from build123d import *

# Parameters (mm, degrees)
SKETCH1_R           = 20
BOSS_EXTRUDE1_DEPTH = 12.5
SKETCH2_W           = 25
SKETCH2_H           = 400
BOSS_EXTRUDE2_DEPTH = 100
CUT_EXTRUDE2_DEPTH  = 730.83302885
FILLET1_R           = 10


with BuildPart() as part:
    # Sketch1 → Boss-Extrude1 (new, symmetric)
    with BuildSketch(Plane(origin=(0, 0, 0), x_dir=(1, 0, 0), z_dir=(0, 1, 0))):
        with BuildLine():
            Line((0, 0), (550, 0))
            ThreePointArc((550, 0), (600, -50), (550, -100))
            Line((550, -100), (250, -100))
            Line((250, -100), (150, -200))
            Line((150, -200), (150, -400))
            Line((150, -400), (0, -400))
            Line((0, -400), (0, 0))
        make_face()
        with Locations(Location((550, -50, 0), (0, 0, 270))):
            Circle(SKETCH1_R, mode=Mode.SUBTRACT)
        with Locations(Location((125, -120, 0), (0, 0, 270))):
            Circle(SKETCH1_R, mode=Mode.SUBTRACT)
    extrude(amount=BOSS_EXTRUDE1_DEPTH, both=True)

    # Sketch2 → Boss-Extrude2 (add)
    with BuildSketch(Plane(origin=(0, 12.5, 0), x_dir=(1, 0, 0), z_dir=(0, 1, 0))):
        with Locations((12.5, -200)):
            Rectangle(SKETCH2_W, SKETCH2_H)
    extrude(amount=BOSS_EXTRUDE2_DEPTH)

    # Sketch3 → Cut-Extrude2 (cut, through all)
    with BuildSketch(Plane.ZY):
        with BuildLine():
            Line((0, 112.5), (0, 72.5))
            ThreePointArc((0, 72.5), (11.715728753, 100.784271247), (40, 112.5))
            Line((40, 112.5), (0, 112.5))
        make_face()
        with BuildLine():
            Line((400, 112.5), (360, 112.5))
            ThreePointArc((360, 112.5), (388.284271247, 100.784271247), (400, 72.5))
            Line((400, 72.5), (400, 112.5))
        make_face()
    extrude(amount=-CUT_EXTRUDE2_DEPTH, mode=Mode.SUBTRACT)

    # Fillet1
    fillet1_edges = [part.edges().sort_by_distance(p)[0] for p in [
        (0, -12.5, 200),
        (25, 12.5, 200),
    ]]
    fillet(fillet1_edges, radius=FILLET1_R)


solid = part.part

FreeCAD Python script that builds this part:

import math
import FreeCAD as App
import Part
import Sketcher

V = App.Vector


def edges_at(feature, points):
    """Names of the edges that pass closest to the given points."""
    edges = feature.Shape.Edges
    near = lambda p: min(range(len(edges)), key=lambda i: edges[i].distToShape(Part.Vertex(*p))[0])
    return sorted({f"Edge{near(p) + 1}" for p in points})

doc = App.newDocument("Part")
body = doc.addObject("PartDesign::Body", "Body")

# Sketch on XZ plane
sketch1 = doc.addObject("Sketcher::SketchObject", "Sketch")
body.addObject(sketch1)
sketch1.AttachmentSupport = (doc.XZ_Plane, [""])
sketch1.MapMode = "FlatFace"
sketch1.addGeometry([
    Part.LineSegment(V(550, 0, 0), V(0, 0, 0)),  # 0
    Part.LineSegment(V(0, 0, 0), V(0, 400, 0)),  # 1
    Part.LineSegment(V(0, 400, 0), V(150, 400, 0)),  # 2
    Part.LineSegment(V(150, 400, 0), V(150, 200, 0)),  # 3
    Part.LineSegment(V(150, 200, 0), V(250, 100, 0)),  # 4
    Part.LineSegment(V(250, 100, 0), V(550, 100, 0)),  # 5
    Part.ArcOfCircle(Part.Circle(V(550, 50, 0), V(0, 0, 1), 50), math.radians(-90), math.radians(90)),  # 6
    Part.Circle(V(125, 120, 0), V(0, 0, 1), 20),  # 7
    Part.Circle(V(550, 50, 0), V(0, 0, 1), 20),  # 8
], False)
sketch1.addConstraint([
    Sketcher.Constraint("Coincident", 0, 2, 1, 1),
    Sketcher.Constraint("Coincident", 1, 2, 2, 1),
    Sketcher.Constraint("Coincident", 2, 2, 3, 1),
    Sketcher.Constraint("Coincident", 3, 2, 4, 1),
    Sketcher.Constraint("Coincident", 4, 2, 5, 1),
    Sketcher.Constraint("Tangent", 5, 2, 6, 2),
    Sketcher.Constraint("Tangent", 6, 1, 0, 1),
    Sketcher.Constraint("Horizontal", 0),
    Sketcher.Constraint("Vertical", 1),
    Sketcher.Constraint("Horizontal", 2),
    Sketcher.Constraint("Vertical", 3),
    Sketcher.Constraint("Horizontal", 5),
    Sketcher.Constraint("Coincident", 0, 2, -1, 1),
    Sketcher.Constraint("Coincident", 8, 3, 6, 3),
    Sketcher.Constraint("Equal", 7, 8),
    Sketcher.Constraint("Diameter", 7, 40.0),
    Sketcher.Constraint("Radius", 6, 50.0),
    Sketcher.Constraint("DistanceX", 0, 2, 0, 1, 550.0),
    Sketcher.Constraint("DistanceX", 2, 1, 2, 2, 150.0),
    Sketcher.Constraint("DistanceX", 5, 1, 5, 2, 300.0),
    Sketcher.Constraint("DistanceY", 1, 1, 1, 2, 400.0),
    Sketcher.Constraint("DistanceY", 3, 2, 3, 1, 200.0),
    Sketcher.Constraint("DistanceX", -1, 1, 7, 3, 125.0),
    Sketcher.Constraint("DistanceY", -1, 1, 7, 3, 120.0),
])
pad1 = doc.addObject("PartDesign::Pad", "Pad")
body.addObject(pad1)
pad1.Profile = sketch1
pad1.Length = 25
pad1.Midplane = True

# Sketch on XZ plane
sketch2 = doc.addObject("Sketcher::SketchObject", "Sketch001")
body.addObject(sketch2)
sketch2.AttachmentSupport = (doc.XZ_Plane, [""])
sketch2.MapMode = "FlatFace"
sketch2.AttachmentOffset = App.Placement(V(0, 0, -12.5), App.Rotation())
sketch2.addGeometry([
    Part.LineSegment(V(0, 0, 0), V(0, 400, 0)),
    Part.LineSegment(V(0, 400, 0), V(25, 400, 0)),
    Part.LineSegment(V(25, 400, 0), V(25, 0, 0)),
    Part.LineSegment(V(25, 0, 0), V(0, 0, 0)),
], False)
sketch2.addConstraint([
    Sketcher.Constraint("Coincident", 0, 2, 1, 1),
    Sketcher.Constraint("Coincident", 1, 2, 2, 1),
    Sketcher.Constraint("Coincident", 2, 2, 3, 1),
    Sketcher.Constraint("Coincident", 3, 2, 0, 1),
    Sketcher.Constraint("Vertical", 0),
    Sketcher.Constraint("Horizontal", 1),
    Sketcher.Constraint("Vertical", 2),
    Sketcher.Constraint("Horizontal", 3),
    Sketcher.Constraint("Coincident", 3, 2, -1, 1),
    Sketcher.Constraint("DistanceX", 1, 1, 1, 2, 25.0),
    Sketcher.Constraint("DistanceY", 0, 1, 0, 2, 400.0),
])
pad2 = doc.addObject("PartDesign::Pad", "Pad001")
body.addObject(pad2)
pad2.Profile = sketch2
pad2.Length = 100
pad2.Reversed = True

# Sketch on YZ plane
sketch3 = doc.addObject("Sketcher::SketchObject", "Sketch002")
body.addObject(sketch3)
sketch3.AttachmentSupport = (doc.YZ_Plane, [""])
sketch3.MapMode = "FlatFace"
sketch3.addGeometry([
    Part.LineSegment(V(112, 0, 0), V(72, 0, 0)),  # 0
    Part.ArcOfCircle(Part.Circle(V(72, 40, 0), V(0, 0, 1), 40), math.radians(-90), math.radians(0)),  # 1
    Part.LineSegment(V(112, 40, 0), V(112, 0, 0)),  # 2
    Part.LineSegment(V(112, 400, 0), V(112, 360, 0)),  # 3
    Part.ArcOfCircle(Part.Circle(V(72, 360, 0), V(0, 0, 1), 40), math.radians(0), math.radians(90)),  # 4
    Part.LineSegment(V(72, 400, 0), V(112, 400, 0)),  # 5
], False)
sketch3.addConstraint([
    Sketcher.Constraint("Tangent", 0, 2, 1, 1),
    Sketcher.Constraint("Tangent", 1, 2, 2, 1),
    Sketcher.Constraint("Coincident", 2, 2, 0, 1),
    Sketcher.Constraint("Tangent", 3, 2, 4, 1),
    Sketcher.Constraint("Tangent", 4, 2, 5, 1),
    Sketcher.Constraint("Coincident", 5, 2, 3, 1),
    Sketcher.Constraint("Horizontal", 0),
    Sketcher.Constraint("Vertical", 2),
    Sketcher.Constraint("Vertical", 3),
    Sketcher.Constraint("Horizontal", 5),
    Sketcher.Constraint("Equal", 1, 4),
    Sketcher.Constraint("PointOnObject", 0, 2, -1),
    Sketcher.Constraint("Vertical", 1, 3, 4, 3),
    Sketcher.Constraint("Radius", 1, 40.0),
    Sketcher.Constraint("DistanceY", -1, 1, 4, 3, 360.0),
    Sketcher.Constraint("DistanceX", -1, 1, 1, 3, 72.5),
])
pocket1 = doc.addObject("PartDesign::Pocket", "Pocket")
body.addObject(pocket1)
pocket1.Profile = sketch3
pocket1.Type = "ThroughAll"
pocket1.Reversed = True
doc.recompute()

fillet = doc.addObject("PartDesign::Fillet", "Fillet")
body.addObject(fillet)
fillet.Base = (pocket1, edges_at(pocket1, [(0, -12.5, 200), (25, 12.5, 200)]))
fillet.Radius = 10

doc.recompute()
